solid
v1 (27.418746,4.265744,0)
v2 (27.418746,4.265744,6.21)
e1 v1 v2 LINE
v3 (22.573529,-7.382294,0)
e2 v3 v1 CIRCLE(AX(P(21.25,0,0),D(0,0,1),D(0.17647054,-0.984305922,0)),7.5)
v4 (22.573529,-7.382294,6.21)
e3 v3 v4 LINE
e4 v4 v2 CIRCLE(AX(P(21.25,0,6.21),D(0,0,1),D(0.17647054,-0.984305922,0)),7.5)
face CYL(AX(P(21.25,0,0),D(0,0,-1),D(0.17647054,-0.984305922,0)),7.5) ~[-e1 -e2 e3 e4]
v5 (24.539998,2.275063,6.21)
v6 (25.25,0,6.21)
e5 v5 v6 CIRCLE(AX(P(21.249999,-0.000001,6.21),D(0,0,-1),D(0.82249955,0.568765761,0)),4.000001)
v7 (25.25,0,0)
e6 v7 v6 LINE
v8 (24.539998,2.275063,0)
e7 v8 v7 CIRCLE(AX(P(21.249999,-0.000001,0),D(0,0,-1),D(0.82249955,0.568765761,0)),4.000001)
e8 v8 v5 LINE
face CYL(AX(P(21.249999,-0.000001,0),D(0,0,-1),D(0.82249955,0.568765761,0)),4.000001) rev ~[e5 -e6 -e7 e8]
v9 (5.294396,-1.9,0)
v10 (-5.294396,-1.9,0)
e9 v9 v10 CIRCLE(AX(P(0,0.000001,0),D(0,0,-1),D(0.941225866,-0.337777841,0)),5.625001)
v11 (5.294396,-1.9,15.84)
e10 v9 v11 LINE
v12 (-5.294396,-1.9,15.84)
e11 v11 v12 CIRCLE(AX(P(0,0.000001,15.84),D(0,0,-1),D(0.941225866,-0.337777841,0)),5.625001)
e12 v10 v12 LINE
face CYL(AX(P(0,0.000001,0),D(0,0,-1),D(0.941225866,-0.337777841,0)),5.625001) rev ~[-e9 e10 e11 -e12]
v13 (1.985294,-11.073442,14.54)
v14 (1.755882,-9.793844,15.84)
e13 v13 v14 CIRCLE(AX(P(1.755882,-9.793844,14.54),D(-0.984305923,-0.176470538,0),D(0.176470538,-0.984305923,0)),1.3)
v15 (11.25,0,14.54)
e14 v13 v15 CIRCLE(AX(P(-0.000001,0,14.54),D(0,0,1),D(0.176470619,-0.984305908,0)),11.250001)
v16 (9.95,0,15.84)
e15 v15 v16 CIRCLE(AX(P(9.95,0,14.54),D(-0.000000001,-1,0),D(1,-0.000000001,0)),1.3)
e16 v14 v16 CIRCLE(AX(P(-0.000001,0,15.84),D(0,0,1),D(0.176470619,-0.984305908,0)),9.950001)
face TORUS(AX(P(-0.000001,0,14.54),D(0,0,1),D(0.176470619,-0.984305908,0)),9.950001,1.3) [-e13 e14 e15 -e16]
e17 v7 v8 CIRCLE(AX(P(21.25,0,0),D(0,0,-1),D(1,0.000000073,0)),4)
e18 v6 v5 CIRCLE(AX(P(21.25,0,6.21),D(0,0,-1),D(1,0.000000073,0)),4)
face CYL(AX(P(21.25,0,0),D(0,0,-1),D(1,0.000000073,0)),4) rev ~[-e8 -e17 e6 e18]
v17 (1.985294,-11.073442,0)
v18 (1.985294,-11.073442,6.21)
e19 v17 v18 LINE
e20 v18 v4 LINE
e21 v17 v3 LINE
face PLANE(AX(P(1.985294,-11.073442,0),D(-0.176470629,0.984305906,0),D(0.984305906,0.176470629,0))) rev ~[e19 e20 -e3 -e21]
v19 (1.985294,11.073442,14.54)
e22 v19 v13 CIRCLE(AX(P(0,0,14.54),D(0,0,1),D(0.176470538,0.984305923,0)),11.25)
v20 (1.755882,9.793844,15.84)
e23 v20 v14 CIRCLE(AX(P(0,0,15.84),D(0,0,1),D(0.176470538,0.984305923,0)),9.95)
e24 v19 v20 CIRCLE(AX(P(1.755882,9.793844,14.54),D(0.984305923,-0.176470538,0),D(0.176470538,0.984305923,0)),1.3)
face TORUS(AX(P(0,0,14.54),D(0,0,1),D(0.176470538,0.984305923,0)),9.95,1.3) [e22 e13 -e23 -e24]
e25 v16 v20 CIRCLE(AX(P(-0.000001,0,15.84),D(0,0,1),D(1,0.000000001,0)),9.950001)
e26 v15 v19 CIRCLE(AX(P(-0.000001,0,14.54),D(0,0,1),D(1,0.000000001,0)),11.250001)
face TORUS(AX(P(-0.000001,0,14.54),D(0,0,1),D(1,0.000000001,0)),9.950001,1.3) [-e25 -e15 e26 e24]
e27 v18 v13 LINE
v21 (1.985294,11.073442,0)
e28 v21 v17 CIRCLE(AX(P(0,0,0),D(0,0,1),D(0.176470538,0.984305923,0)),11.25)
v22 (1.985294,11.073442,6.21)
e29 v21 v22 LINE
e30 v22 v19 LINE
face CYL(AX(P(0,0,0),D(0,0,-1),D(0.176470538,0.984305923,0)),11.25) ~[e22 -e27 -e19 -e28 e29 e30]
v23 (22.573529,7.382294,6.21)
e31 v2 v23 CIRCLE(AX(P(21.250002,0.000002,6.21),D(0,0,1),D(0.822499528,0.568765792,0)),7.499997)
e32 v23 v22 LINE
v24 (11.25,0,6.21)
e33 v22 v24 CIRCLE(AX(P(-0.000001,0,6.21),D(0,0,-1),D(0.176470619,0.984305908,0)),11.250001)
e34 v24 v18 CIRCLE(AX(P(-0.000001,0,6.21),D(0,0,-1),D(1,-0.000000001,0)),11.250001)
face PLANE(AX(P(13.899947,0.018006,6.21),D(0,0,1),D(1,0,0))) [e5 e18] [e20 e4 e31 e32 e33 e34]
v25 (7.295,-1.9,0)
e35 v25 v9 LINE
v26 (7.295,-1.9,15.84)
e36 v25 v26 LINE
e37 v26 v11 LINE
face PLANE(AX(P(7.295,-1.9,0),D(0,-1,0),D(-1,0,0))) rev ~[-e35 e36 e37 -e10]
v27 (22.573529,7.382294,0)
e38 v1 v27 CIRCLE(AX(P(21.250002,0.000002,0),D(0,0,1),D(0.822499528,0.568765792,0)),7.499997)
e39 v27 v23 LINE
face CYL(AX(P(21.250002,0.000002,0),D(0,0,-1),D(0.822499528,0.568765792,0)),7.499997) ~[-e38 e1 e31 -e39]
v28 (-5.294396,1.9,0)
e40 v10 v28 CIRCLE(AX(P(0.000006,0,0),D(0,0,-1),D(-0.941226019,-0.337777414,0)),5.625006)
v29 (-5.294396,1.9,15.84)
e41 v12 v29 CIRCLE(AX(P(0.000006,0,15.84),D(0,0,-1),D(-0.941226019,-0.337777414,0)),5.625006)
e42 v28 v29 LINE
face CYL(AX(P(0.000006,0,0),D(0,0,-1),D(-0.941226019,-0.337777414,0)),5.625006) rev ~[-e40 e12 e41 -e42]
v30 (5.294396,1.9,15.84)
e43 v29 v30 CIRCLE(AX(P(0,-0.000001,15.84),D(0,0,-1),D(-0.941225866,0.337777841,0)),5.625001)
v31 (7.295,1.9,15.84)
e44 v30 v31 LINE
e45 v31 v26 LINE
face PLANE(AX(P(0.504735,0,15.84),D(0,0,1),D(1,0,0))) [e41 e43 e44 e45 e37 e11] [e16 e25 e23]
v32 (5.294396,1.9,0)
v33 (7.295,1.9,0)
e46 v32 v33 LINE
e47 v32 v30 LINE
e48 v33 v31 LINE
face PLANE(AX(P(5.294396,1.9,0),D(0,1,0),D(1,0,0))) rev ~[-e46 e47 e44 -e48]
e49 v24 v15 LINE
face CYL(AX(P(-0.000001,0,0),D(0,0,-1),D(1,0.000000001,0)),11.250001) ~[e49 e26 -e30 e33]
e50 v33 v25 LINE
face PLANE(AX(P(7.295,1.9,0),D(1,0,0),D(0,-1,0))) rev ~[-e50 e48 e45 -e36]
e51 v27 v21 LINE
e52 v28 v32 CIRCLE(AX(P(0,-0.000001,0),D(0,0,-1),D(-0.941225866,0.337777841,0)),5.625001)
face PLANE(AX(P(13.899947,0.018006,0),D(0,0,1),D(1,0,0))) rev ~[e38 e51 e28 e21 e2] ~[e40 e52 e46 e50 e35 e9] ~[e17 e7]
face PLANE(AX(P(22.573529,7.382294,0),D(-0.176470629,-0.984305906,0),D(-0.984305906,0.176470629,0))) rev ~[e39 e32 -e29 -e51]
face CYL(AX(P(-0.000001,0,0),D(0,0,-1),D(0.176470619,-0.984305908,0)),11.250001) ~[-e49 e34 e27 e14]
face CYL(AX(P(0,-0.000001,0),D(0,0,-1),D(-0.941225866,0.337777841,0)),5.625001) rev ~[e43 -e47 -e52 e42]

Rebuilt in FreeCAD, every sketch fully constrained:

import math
import FreeCAD as App
import Part
import Sketcher

V = App.Vector
Q = App.Units.Quantity


def edges_at(feature, points):
    """Names of the edges that pass closest to the given points."""
    edges = feature.Shape.Edges
    near = lambda p: min(range(len(edges)), key=lambda i: edges[i].distToShape(Part.Vertex(*p))[0])
    return sorted({f"Edge{near(p) + 1}" for p in points})

doc = App.newDocument("Part")
body = doc.addObject("PartDesign::Body", "Body")

# Sketch on XY plane
sketch1 = body.newObject("Sketcher::SketchObject", "Sketch")
sketch1.AttachmentSupport = (doc.getObject("XY_Plane"), [""])
sketch1.MapMode = "FlatFace"
sketch1.addGeometry(Part.ArcOfCircle(Part.Circle(V(0, 0, 0), V(0, 0, 1), 11.3), math.radians(-80), math.radians(0)), False)
sketch1.addGeometry(Part.ArcOfCircle(Part.Circle(V(0, 0, 0), V(0, 0, 1), 11.3), math.radians(0), math.radians(80)), False)
sketch1.addGeometry(Part.ArcOfCircle(Part.Circle(V(0, 0, 0), V(0, 0, 1), 11.3), math.radians(80), math.radians(280)), False)
sketch1.addGeometry(Part.ArcOfCircle(Part.Circle(V(0, 0, 0), V(0, 0, 1), 5.6), math.radians(-160), math.radians(-20)), False)
sketch1.addGeometry(Part.ArcOfCircle(Part.Circle(V(0, 0, 0), V(0, 0, 1), 5.6), math.radians(160), math.radians(200)), False)
sketch1.addGeometry(Part.ArcOfCircle(Part.Circle(V(0, 0, 0), V(0, 0, 1), 5.6), math.radians(20), math.radians(160)), False)
sketch1.addGeometry(Part.LineSegment(V(5.3, 1.9, 0), V(7.3, 1.9, 0)), False)
sketch1.addGeometry(Part.LineSegment(V(7.3, 1.9, 0), V(7.3, -1.9, 0)), False)
sketch1.addGeometry(Part.LineSegment(V(7.3, -1.9, 0), V(5.3, -1.9, 0)), False)
sketch1.addConstraint(Sketcher.Constraint("Tangent", 0, 2, 1, 1))
sketch1.addConstraint(Sketcher.Constraint("Tangent", 1, 2, 2, 1))
sketch1.addConstraint(Sketcher.Constraint("Tangent", 2, 2, 0, 1))
sketch1.addConstraint(Sketcher.Constraint("Tangent", 3, 1, 4, 2))
sketch1.addConstraint(Sketcher.Constraint("Tangent", 4, 1, 5, 2))
sketch1.addConstraint(Sketcher.Constraint("Coincident", 5, 1, 6, 1))
sketch1.addConstraint(Sketcher.Constraint("Coincident", 6, 2, 7, 1))
sketch1.addConstraint(Sketcher.Constraint("Coincident", 7, 2, 8, 1))
sketch1.addConstraint(Sketcher.Constraint("Coincident", 8, 2, 3, 2))
sketch1.addConstraint(Sketcher.Constraint("Horizontal", 6))
sketch1.addConstraint(Sketcher.Constraint("Vertical", 7))
sketch1.addConstraint(Sketcher.Constraint("Horizontal", 8))
sketch1.addConstraint(Sketcher.Constraint("Coincident", 0, 3, -1, 1))
sketch1.addConstraint(Sketcher.Constraint("Coincident", 3, 3, -1, 1))
sketch1.addConstraint(Sketcher.Constraint("Coincident", 5, 3, -1, 1))
sketch1.addConstraint(Sketcher.Constraint("PointOnObject", 0, 2, -1))
sketch1.addConstraint(Sketcher.Constraint("Horizontal", 4, 1, 5, 1))
sketch1.addConstraint(Sketcher.Constraint("Horizontal", 3, 1, 7, 2))
sketch1.addConstraint(Sketcher.Constraint("Vertical", 1, 2, 2, 2))
sketch1.addConstraint(Sketcher.Constraint("Vertical", 3, 1, 4, 1))
sketch1.addConstraint(Sketcher.Constraint("Radius", 0, Q("11.250001 mm")))
sketch1.addConstraint(Sketcher.Constraint("DistanceY", 7, 2, 7, 1, Q("3.8 mm")))
sketch1.addConstraint(Sketcher.Constraint("Radius", 3, Q("5.625001 mm")))
sketch1.addConstraint(Sketcher.Constraint("DistanceX", -1, 1, 6, 2, Q("7.295 mm")))
sketch1.addConstraint(Sketcher.Constraint("DistanceY", -1, 1, 1, 2, Q("11.073442 mm")))
pad1 = body.newObject("PartDesign::Pad", "Pad")
pad1.Profile = sketch1
pad1.Length = 15.84

# Sketch on XY plane
sketch2 = body.newObject("Sketcher::SketchObject", "Sketch001")
sketch2.AttachmentSupport = (doc.getObject("XY_Plane"), [""])
sketch2.MapMode = "FlatFace"
sketch2.addGeometry(Part.ArcOfCircle(Part.Circle(V(0, 0, 0), V(0, 0, 1), 11.3), math.radians(0), math.radians(80)), False)
sketch2.addGeometry(Part.ArcOfCircle(Part.Circle(V(0, 0, 0), V(0, 0, 1), 11.3), math.radians(-80), math.radians(0)), False)
sketch2.addGeometry(Part.LineSegment(V(2, -11.1, 0), V(22.6, -7.4, 0)), False)
sketch2.addGeometry(Part.ArcOfCircle(Part.Circle(V(21.2, 0, 0), V(0, 0, 1), 7.5), math.radians(-80), math.radians(35)), False)
sketch2.addGeometry(Part.ArcOfCircle(Part.Circle(V(21.3, 0, 0), V(0, 0, 1), 7.5), math.radians(35), math.radians(80)), False)
sketch2.addGeometry(Part.LineSegment(V(22.6, 7.4, 0), V(2, 11.1, 0)), False)
sketch2.addGeometry(Part.ArcOfCircle(Part.Circle(V(21.2, 0, 0), V(0, 0, 1), 4), math.radians(0), math.radians(35)), False)
sketch2.addGeometry(Part.ArcOfCircle(Part.Circle(V(21.3, 0, 0), V(0, 0, 1), 4), math.radians(35), math.radians(360)), False)
sketch2.addConstraint(Sketcher.Constraint("Tangent", 0, 1, 1, 2))
sketch2.addConstraint(Sketcher.Constraint("Tangent", 1, 1, 2, 1))
sketch2.addConstraint(Sketcher.Constraint("Tangent", 2, 2, 3, 1))
sketch2.addConstraint(Sketcher.Constraint("Tangent", 3, 2, 4, 1))
sketch2.addConstraint(Sketcher.Constraint("Tangent", 4, 2, 5, 1))
sketch2.addConstraint(Sketcher.Constraint("Tangent", 5, 2, 0, 2))
sketch2.addConstraint(Sketcher.Constraint("Tangent", 6, 1, 7, 2))
sketch2.addConstraint(Sketcher.Constraint("Coincident", 7, 1, 6, 2))
sketch2.addConstraint(Sketcher.Constraint("Coincident", 0, 3, -1, 1))
sketch2.addConstraint(Sketcher.Constraint("Coincident", 6, 3, 3, 3))
sketch2.addConstraint(Sketcher.Constraint("Equal", 0, 1))
sketch2.addConstraint(Sketcher.Constraint("Symmetric", 2, 2, 4, 2, -1))
sketch2.addConstraint(Sketcher.Constraint("PointOnObject", 0, 1, -1))
sketch2.addConstraint(Sketcher.Constraint("PointOnObject", 6, 1, -1))
sketch2.addConstraint(Sketcher.Constraint("Radius", 6, Q("4.000001 mm")))
sketch2.addConstraint(Sketcher.Constraint("Radius", 3, Q("7.5 mm")))
sketch2.addConstraint(Sketcher.Constraint("Radius", 0, Q("11.250001 mm")))
sketch2.addConstraint(Sketcher.Constraint("DistanceX", 0, 1, 6, 3, Q("9.999999 mm")))
sketch2.addConstraint(Sketcher.Constraint("DistanceX", 3, 3, 7, 1, Q("3.289998 mm")))
sketch2.addConstraint(Sketcher.Constraint("DistanceY", 4, 3, 3, 2, Q("4.265742 mm")))
pad2 = body.newObject("PartDesign::Pad", "Pad001")
pad2.Profile = sketch2
pad2.Length = 6.21
doc.recompute()

fillet = body.newObject("PartDesign::Fillet", "Fillet")
fillet.Base = (pad2, edges_at(pad2, [(-11.25, 0, 15.84)]))
fillet.Radius = 1.3

doc.recompute()
